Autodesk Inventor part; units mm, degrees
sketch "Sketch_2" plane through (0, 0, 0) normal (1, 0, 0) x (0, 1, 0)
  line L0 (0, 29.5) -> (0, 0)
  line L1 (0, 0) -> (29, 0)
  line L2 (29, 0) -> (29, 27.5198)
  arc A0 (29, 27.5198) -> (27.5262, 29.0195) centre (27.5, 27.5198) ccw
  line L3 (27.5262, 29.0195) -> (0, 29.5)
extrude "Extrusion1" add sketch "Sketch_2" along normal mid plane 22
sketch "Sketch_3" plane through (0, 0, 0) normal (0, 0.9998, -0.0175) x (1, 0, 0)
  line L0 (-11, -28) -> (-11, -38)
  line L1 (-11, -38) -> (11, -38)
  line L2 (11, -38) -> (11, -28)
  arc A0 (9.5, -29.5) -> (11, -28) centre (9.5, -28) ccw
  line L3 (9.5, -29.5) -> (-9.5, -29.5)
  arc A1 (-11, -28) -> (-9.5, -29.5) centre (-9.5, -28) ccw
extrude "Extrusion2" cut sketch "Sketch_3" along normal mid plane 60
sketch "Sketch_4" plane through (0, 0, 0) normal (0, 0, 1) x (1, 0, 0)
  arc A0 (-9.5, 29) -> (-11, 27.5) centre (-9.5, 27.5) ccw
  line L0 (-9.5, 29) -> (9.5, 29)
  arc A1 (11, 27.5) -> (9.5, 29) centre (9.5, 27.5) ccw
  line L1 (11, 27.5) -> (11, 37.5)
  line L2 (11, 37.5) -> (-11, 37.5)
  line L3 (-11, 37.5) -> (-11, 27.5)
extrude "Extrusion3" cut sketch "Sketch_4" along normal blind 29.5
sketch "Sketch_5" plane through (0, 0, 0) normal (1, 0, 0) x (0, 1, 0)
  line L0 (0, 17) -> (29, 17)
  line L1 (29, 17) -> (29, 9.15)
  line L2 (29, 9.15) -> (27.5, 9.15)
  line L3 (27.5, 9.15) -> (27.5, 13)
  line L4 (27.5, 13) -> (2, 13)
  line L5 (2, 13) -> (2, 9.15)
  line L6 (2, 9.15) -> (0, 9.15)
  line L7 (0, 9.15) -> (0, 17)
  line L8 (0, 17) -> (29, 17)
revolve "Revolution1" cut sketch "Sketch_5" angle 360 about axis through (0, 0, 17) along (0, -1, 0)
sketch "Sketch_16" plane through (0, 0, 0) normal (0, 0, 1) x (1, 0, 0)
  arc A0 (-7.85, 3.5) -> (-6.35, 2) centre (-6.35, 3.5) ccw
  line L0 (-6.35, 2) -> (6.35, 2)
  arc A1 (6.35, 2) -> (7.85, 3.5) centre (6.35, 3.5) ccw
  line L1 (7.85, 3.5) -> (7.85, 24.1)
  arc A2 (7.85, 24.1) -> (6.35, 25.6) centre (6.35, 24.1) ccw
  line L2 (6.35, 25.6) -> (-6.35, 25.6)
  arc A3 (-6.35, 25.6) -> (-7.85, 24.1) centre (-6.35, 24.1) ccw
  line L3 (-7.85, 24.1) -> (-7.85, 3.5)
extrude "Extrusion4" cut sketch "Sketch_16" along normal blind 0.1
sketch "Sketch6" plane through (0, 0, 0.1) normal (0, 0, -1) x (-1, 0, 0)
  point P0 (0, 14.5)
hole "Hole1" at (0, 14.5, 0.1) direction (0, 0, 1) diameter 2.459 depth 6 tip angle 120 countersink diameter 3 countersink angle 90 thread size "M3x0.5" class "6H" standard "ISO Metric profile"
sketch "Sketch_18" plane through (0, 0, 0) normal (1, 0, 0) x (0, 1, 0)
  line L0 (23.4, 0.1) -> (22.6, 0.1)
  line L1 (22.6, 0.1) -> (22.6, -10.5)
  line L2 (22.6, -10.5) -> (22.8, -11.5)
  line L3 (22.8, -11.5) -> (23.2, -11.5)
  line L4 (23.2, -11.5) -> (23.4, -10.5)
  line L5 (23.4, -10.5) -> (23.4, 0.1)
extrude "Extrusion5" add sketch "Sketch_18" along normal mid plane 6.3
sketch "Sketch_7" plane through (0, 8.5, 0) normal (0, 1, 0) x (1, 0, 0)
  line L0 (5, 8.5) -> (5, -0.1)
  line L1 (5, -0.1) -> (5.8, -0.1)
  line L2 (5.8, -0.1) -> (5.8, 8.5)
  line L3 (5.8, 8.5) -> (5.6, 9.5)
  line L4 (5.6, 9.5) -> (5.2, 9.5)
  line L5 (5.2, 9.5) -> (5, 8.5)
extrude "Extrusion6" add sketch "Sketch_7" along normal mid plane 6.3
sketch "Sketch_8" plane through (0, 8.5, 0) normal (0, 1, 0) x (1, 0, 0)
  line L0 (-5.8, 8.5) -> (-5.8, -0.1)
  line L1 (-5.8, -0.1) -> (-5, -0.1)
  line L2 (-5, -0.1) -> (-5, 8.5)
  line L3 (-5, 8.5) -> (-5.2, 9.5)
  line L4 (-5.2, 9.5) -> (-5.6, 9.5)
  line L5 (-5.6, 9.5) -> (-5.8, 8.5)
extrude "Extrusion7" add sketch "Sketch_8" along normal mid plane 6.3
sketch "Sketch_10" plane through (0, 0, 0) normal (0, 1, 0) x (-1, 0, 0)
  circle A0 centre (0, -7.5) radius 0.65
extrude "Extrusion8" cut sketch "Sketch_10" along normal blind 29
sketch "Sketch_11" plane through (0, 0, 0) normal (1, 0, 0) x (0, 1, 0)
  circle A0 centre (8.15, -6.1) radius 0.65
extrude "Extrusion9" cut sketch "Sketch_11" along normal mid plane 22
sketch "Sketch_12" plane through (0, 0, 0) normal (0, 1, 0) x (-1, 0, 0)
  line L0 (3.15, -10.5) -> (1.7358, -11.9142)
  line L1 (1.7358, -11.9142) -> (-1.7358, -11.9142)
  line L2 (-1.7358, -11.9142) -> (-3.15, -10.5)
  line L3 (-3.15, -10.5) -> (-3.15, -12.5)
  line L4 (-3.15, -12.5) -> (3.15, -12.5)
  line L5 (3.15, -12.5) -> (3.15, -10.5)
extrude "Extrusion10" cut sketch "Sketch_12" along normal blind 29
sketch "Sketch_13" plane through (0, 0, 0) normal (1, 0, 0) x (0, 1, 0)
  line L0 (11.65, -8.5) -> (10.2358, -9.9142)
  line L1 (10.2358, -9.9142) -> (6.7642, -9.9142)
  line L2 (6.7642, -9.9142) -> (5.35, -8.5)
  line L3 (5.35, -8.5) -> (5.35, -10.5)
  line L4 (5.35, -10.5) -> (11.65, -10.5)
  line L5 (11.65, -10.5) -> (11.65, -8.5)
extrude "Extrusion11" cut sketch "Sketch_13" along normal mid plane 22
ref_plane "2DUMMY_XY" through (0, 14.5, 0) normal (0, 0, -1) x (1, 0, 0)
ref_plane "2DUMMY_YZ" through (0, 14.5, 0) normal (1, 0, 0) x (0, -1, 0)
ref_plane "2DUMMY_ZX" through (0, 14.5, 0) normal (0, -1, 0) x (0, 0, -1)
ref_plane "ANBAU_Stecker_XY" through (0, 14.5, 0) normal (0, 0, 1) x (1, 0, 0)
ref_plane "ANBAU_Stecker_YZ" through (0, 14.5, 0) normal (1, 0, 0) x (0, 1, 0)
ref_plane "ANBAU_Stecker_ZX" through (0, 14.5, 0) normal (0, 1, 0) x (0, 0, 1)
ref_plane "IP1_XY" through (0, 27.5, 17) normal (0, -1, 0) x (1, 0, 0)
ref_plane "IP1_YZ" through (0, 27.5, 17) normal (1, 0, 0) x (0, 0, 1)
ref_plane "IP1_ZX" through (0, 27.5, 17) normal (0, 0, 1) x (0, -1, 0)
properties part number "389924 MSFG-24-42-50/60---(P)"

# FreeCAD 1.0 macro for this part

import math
import FreeCAD as App
import Part
import Sketcher
Q = App.Units.Quantity


def add_polygon(sketch, points):
    """Adds a closed chain of lines whose ends are joined by coincident constraints."""
    first, n = sketch.GeometryCount, len(points)
    for a, b in zip(points, points[1:] + points[:1]):
        sketch.addGeometry(Part.LineSegment(App.Vector(*a, 0), App.Vector(*b, 0)), False)
    for i in range(n):
        sketch.addConstraint(Sketcher.Constraint("Coincident", first + i, 2, first + (i + 1) % n, 1))

doc = App.newDocument("Part")
body = doc.addObject("PartDesign::Body", "Body")

sketch1 = body.newObject("Sketcher::SketchObject", "Sketch")
sketch1.AttachmentSupport = (doc.getObject("YZ_Plane"), [""])
sketch1.MapMode = "FlatFace"
sketch1.addGeometry([
    Part.LineSegment(App.Vector(27.5, 29, 0), App.Vector(0, 29.5, 0)),
    Part.LineSegment(App.Vector(0, 29.5, 0), App.Vector(0, 0, 0)),
    Part.LineSegment(App.Vector(0, 0, 0), App.Vector(29, 0, 0)),
    Part.LineSegment(App.Vector(29, 0, 0), App.Vector(29, 27.5, 0)),
    Part.ArcOfCircle(Part.Circle(App.Vector(27.5, 27.5, 0), App.Vector(0, 0, 1), 1.5), math.radians(0), math.radians(89)),
], False)
sketch1.addConstraint([
    Sketcher.Constraint("Coincident", 0, 2, 1, 1),
    Sketcher.Constraint("Coincident", 1, 2, 2, 1),
    Sketcher.Constraint("Coincident", 2, 2, 3, 1),
    Sketcher.Constraint("Tangent", 3, 2, 4, 1),
    Sketcher.Constraint("Tangent", 4, 2, 0, 1),
    Sketcher.Constraint("Vertical", 1),
    Sketcher.Constraint("Horizontal", 2),
    Sketcher.Constraint("Vertical", 3),
    Sketcher.Constraint("Coincident", 1, 2, -1, 1),
    Sketcher.Constraint("Radius", 4, 1.5),
    Sketcher.Constraint("DistanceX", 2, 1, 2, 2, 29.0),
    Sketcher.Constraint("Angle", 0, Q("179 deg")),
    Sketcher.Constraint("DistanceY", 1, 2, 1, 1, 29.5),
])
pad1 = body.newObject("PartDesign::Pad", "Pad")
pad1.Profile = sketch1
pad1.Length = 22
pad1.Midplane = True

sketch2 = body.newObject("Sketcher::SketchObject", "Sketch001")
sketch2.Placement = App.Placement(App.Vector(0, 0, 0), App.Rotation(App.Vector(1, 0, 0), App.Vector(0, -0.017452406, -0.999847695), App.Vector(0, 0.999847695, -0.017452406), "ZXY"))
sketch2.addGeometry([
    Part.ArcOfCircle(Part.Circle(App.Vector(-9.5, -28, 0), App.Vector(0, 0, 1), 1.5), math.radians(180), math.radians(270)),
    Part.LineSegment(App.Vector(-11, -28, 0), App.Vector(-11, -38, 0)),
    Part.LineSegment(App.Vector(-11, -38, 0), App.Vector(11, -38, 0)),
    Part.LineSegment(App.Vector(11, -38, 0), App.Vector(11, -28, 0)),
    Part.ArcOfCircle(Part.Circle(App.Vector(9.5, -28, 0), App.Vector(0, 0, 1), 1.5), math.radians(-90), math.radians(0)),
    Part.LineSegment(App.Vector(9.5, -29.5, 0), App.Vector(-9.5, -29.5, 0)),
], False)
sketch2.addConstraint([
    Sketcher.Constraint("Tangent", 0, 1, 1, 1),
    Sketcher.Constraint("Coincident", 1, 2, 2, 1),
    Sketcher.Constraint("Coincident", 2, 2, 3, 1),
    Sketcher.Constraint("Tangent", 3, 2, 4, 2),
    Sketcher.Constraint("Tangent", 4, 1, 5, 1),
    Sketcher.Constraint("Tangent", 5, 2, 0, 2),
    Sketcher.Constraint("Vertical", 1),
    Sketcher.Constraint("Horizontal", 2),
    Sketcher.Constraint("Vertical", 3),
    Sketcher.Constraint("Horizontal", 5),
    Sketcher.Constraint("Equal", 0, 4),
    Sketcher.Constraint("Radius", 0, 1.5),
    Sketcher.Constraint("DistanceX", 2, 1, 2, 2, 22.0),
    Sketcher.Constraint("DistanceY", 1, 2, 1, 1, 10.0),
    Sketcher.Constraint("DistanceY", 0, 3, -1, 1, 28.0),
    Sketcher.Constraint("DistanceX", 0, 1, -1, 1, 11.0),
])
pocket1 = body.newObject("PartDesign::Pocket", "Pocket")
pocket1.Profile = sketch2
pocket1.Length = 60
pocket1.Midplane = True

sketch3 = body.newObject("Sketcher::SketchObject", "Sketch002")
sketch3.AttachmentSupport = (doc.getObject("XY_Plane"), [""])
sketch3.MapMode = "FlatFace"
sketch3.addGeometry([
    Part.ArcOfCircle(Part.Circle(App.Vector(-9.5, 27.5, 0), App.Vector(0, 0, 1), 1.5), math.radians(90), math.radians(180)),
    Part.LineSegment(App.Vector(-9.5, 29, 0), App.Vector(9.5, 29, 0)),
    Part.ArcOfCircle(Part.Circle(App.Vector(9.5, 27.5, 0), App.Vector(0, 0, 1), 1.5), math.radians(0), math.radians(90)),
    Part.LineSegment(App.Vector(11, 27.5, 0), App.Vector(11, 37.5, 0)),
    Part.LineSegment(App.Vector(11, 37.5, 0), App.Vector(-11, 37.5, 0)),
    Part.LineSegment(App.Vector(-11, 37.5, 0), App.Vector(-11, 27.5, 0)),
], False)
sketch3.addConstraint([
    Sketcher.Constraint("Tangent", 0, 1, 1, 1),
    Sketcher.Constraint("Tangent", 1, 2, 2, 2),
    Sketcher.Constraint("Tangent", 2, 1, 3, 1),
    Sketcher.Constraint("Coincident", 3, 2, 4, 1),
    Sketcher.Constraint("Coincident", 4, 2, 5, 1),
    Sketcher.Constraint("Tangent", 5, 2, 0, 2),
    Sketcher.Constraint("Horizontal", 1),
    Sketcher.Constraint("Vertical", 3),
    Sketcher.Constraint("Horizontal", 4),
    Sketcher.Constraint("Vertical", 5),
    Sketcher.Constraint("Equal", 0, 2),
    Sketcher.Constraint("Radius", 0, 1.5),
    Sketcher.Constraint("DistanceX", 1, 1, 1, 2, 19.0),
    Sketcher.Constraint("DistanceY", 3, 1, 3, 2, 10.0),
    Sketcher.Constraint("DistanceY", -1, 1, 0, 1, 29.0),
    Sketcher.Constraint("DistanceX", -1, 1, 2, 1, 11.0),
])
pocket2 = body.newObject("PartDesign::Pocket", "Pocket001")
pocket2.Profile = sketch3
pocket2.Length = 29.5
pocket2.Reversed = True

sketch4 = body.newObject("Sketcher::SketchObject", "Sketch003")
sketch4.AttachmentSupport = (doc.getObject("YZ_Plane"), [""])
sketch4.MapMode = "FlatFace"
add_polygon(sketch4, [(29, 17), (0, 17), (0, 9.2), (2, 9.2), (2, 13), (27.5, 13), (27.5, 9.2), (29, 9.2)])
sketch4.addGeometry(Part.LineSegment(App.Vector(29, 17, 0), App.Vector(0, 17, 0)), True)
sketch4.addConstraint([
    Sketcher.Constraint("Horizontal", 0),
    Sketcher.Constraint("Vertical", 1),
    Sketcher.Constraint("Horizontal", 2),
    Sketcher.Constraint("Vertical", 3),
    Sketcher.Constraint("Horizontal", 4),
    Sketcher.Constraint("Vertical", 5),
    Sketcher.Constraint("Horizontal", 6),
    Sketcher.Constraint("Vertical", 7),
    Sketcher.Constraint("Horizontal", 8),
    Sketcher.Constraint("Coincident", 8, 1, 7, 2),
    Sketcher.Constraint("PointOnObject", 0, 2, -2),
    Sketcher.Constraint("PointOnObject", 8, 2, -2),
    Sketcher.Constraint("Horizontal", 2, 2, 5, 2),
    Sketcher.Constraint("DistanceX", 0, 2, 0, 1, 29.0),
    Sketcher.Constraint("DistanceX", 2, 1, 2, 2, 2.0),
    Sketcher.Constraint("DistanceX", 4, 1, 4, 2, 25.5),
    Sketcher.Constraint("DistanceY", -1, 1, 0, 2, 17.0),
    Sketcher.Constraint("DistanceY", -1, 1, 3, 2, 13.0),
    Sketcher.Constraint("DistanceY", 1, 2, 1, 1, 7.85),
])
groove = body.newObject("PartDesign::Groove", "Groove")
groove.Profile = sketch4
groove.ReferenceAxis = (sketch4, ["Axis0"])
groove.Angle = 360

sketch5 = body.newObject("Sketcher::SketchObject", "Sketch004")
sketch5.AttachmentSupport = (doc.getObject("XY_Plane"), [""])
sketch5.MapMode = "FlatFace"
sketch5.addGeometry([
    Part.LineSegment(App.Vector(-7.8, 24.1, 0), App.Vector(-7.8, 3.5, 0)),
    Part.ArcOfCircle(Part.Circle(App.Vector(-6.3, 3.5, 0), App.Vector(0, 0, 1), 1.5), math.radians(180), math.radians(270)),
    Part.LineSegment(App.Vector(-6.3, 2, 0), App.Vector(6.3, 2, 0)),
    Part.ArcOfCircle(Part.Circle(App.Vector(6.3, 3.5, 0), App.Vector(0, 0, 1), 1.5), math.radians(-90), math.radians(0)),
    Part.LineSegment(App.Vector(7.8, 3.5, 0), App.Vector(7.8, 24.1, 0)),
    Part.ArcOfCircle(Part.Circle(App.Vector(6.3, 24.1, 0), App.Vector(0, 0, 1), 1.5), math.radians(0), math.radians(90)),
    Part.LineSegment(App.Vector(6.3, 25.6, 0), App.Vector(-6.3, 25.6, 0)),
    Part.ArcOfCircle(Part.Circle(App.Vector(-6.3, 24.1, 0), App.Vector(0, 0, 1), 1.5), math.radians(90), math.radians(180)),
], False)
sketch5.addConstraint([
    Sketcher.Constraint("Tangent", 0, 2, 1, 1),
    Sketcher.Constraint("Tangent", 1, 2, 2, 1),
    Sketcher.Constraint("Tangent", 2, 2, 3, 1),
    Sketcher.Constraint("Tangent", 3, 2, 4, 1),
    Sketcher.Constraint("Tangent", 4, 2, 5, 1),
    Sketcher.Constraint("Tangent", 5, 2, 6, 1),
    Sketcher.Constraint("Tangent", 6, 2, 7, 1),
    Sketcher.Constraint("Tangent", 7, 2, 0, 1),
    Sketcher.Constraint("Vertical", 0),
    Sketcher.Constraint("Horizontal", 2),
    Sketcher.Constraint("Vertical", 4),
    Sketcher.Constraint("Horizontal", 6),
    Sketcher.Constraint("Equal", 1, 3),
    Sketcher.Constraint("Equal", 3, 5),
    Sketcher.Constraint("Equal", 5, 7),
    Sketcher.Constraint("Radius", 1, 1.5),
    Sketcher.Constraint("DistanceX", 2, 1, 2, 2, 12.7),
    Sketcher.Constraint("DistanceY", 0, 2, 0, 1, 20.6),
    Sketcher.Constraint("DistanceY", -1, 1, 1, 2, 2.0),
    Sketcher.Constraint("DistanceX", 1, 3, -1, 1, 6.35),
])
pocket3 = body.newObject("PartDesign::Pocket", "Pocket002")
pocket3.Profile = sketch5
pocket3.Length = 0.1
pocket3.Reversed = True

sketch6 = body.newObject("Sketcher::SketchObject", "Sketch005")
sketch6.AttachmentSupport = (doc.getObject("XY_Plane"), [""])
sketch6.MapMode = "FlatFace"
sketch6.AttachmentOffset = App.Placement(App.Vector(0, 0, 0.1), App.Rotation())
sketch6.addGeometry(Part.Circle(App.Vector(0, 14.5, 0), App.Vector(0, 0, 1), 1.2), False)
sketch6.addConstraint([
    Sketcher.Constraint("PointOnObject", 0, 3, -2),
    Sketcher.Constraint("Diameter", 0, 2.459),
    Sketcher.Constraint("DistanceY", -1, 1, 0, 3, 14.5),
])
doc.recompute()
hole = body.newObject("PartDesign::Hole", "Hole")
hole.Profile = sketch6
hole.ThreadType = "None"
hole.Diameter = 2.459
hole.DepthType = "Dimension"
hole.Depth = 6
hole.DrillPoint = "Angled"
hole.DrillPointAngle = 120
hole.HoleCutType = "Countersink"
hole.HoleCutDiameter = 3
hole.HoleCutCountersinkAngle = 90
hole.Reversed = True

sketch7 = body.newObject("Sketcher::SketchObject", "Sketch006")
sketch7.AttachmentSupport = (doc.getObject("YZ_Plane"), [""])
sketch7.MapMode = "FlatFace"
add_polygon(sketch7, [(23.4, -10.5), (23.4, 0.1), (22.6, 0.1), (22.6, -10.5), (22.8, -11.5), (23.2, -11.5)])
sketch7.addConstraint([
    Sketcher.Constraint("Vertical", 0),
    Sketcher.Constraint("Horizontal", 1),
    Sketcher.Constraint("Vertical", 2),
    Sketcher.Constraint("Horizontal", 4),
    Sketcher.Constraint("Horizontal", 2, 2, 5, 2),
    Sketcher.Constraint("Equal", 3, 5),
    Sketcher.Constraint("DistanceX", 1, 2, 1, 1, 0.8),
    Sketcher.Constraint("DistanceX", 4, 1, 4, 2, 0.4),
    Sketcher.Constraint("DistanceY", 0, 1, 0, 2, 10.6),
    Sketcher.Constraint("DistanceY", 3, 2, 2, 2, 1.0),
    Sketcher.Constraint("DistanceX", -1, 1, 0, 2, 23.4),
    Sketcher.Constraint("DistanceY", -1, 1, 0, 2, 0.1),
])
pad2 = body.newObject("PartDesign::Pad", "Pad001")
pad2.Profile = sketch7
pad2.Length = 6.3
pad2.Midplane = True

sketch8 = body.newObject("Sketcher::SketchObject", "Sketch007")
sketch8.AttachmentSupport = (doc.getObject("XZ_Plane"), [""])
sketch8.MapMode = "FlatFace"
sketch8.AttachmentOffset = App.Placement(App.Vector(0, 0, -8.5), App.Rotation())
add_polygon(sketch8, [(5.2, -9.5), (5, -8.5), (5, 0.1), (5.8, 0.1), (5.8, -8.5), (5.6, -9.5)])
sketch8.addConstraint([
    Sketcher.Constraint("Vertical", 1),
    Sketcher.Constraint("Horizontal", 2),
    Sketcher.Constraint("Vertical", 3),
    Sketcher.Constraint("Horizontal", 5),
    Sketcher.Constraint("Horizontal", 0, 2, 3, 2),
    Sketcher.Constraint("Equal", 0, 4),
    Sketcher.Constraint("DistanceX", 2, 1, 2, 2, 0.8),
    Sketcher.Constraint("DistanceX", 5, 2, 5, 1, 0.4),
    Sketcher.Constraint("DistanceY", 1, 1, 1, 2, 8.6),
    Sketcher.Constraint("DistanceX", -1, 1, 0, 2, 5.0),
    Sketcher.Constraint("DistanceY", 4, 2, 3, 2, 1.0),
    Sketcher.Constraint("DistanceY", 0, 2, -1, 1, 8.5),
])
pad3 = body.newObject("PartDesign::Pad", "Pad002")
pad3.Profile = sketch8
pad3.Length = 6.3
pad3.Midplane = True

sketch9 = body.newObject("Sketcher::SketchObject", "Sketch008")
sketch9.AttachmentSupport = (doc.getObject("XZ_Plane"), [""])
sketch9.MapMode = "FlatFace"
sketch9.AttachmentOffset = App.Placement(App.Vector(0, 0, -8.5), App.Rotation())
add_polygon(sketch9, [(-5.6, -9.5), (-5.8, -8.5), (-5.8, 0.1), (-5, 0.1), (-5, -8.5), (-5.2, -9.5)])
sketch9.addConstraint([
    Sketcher.Constraint("Vertical", 1),
    Sketcher.Constraint("Horizontal", 2),
    Sketcher.Constraint("Vertical", 3),
    Sketcher.Constraint("Horizontal", 5),
    Sketcher.Constraint("Horizontal", 0, 2, 3, 2),
    Sketcher.Constraint("Equal", 0, 4),
    Sketcher.Constraint("DistanceX", 2, 1, 2, 2, 0.8),
    Sketcher.Constraint("DistanceX", 5, 2, 5, 1, 0.4),
    Sketcher.Constraint("DistanceY", 1, 1, 1, 2, 8.6),
    Sketcher.Constraint("DistanceX", 2, 2, -1, 1, 5.0),
    Sketcher.Constraint("DistanceY", 4, 2, 3, 2, 1.0),
    Sketcher.Constraint("DistanceY", 0, 2, -1, 1, 8.5),
])
pad4 = body.newObject("PartDesign::Pad", "Pad003")
pad4.Profile = sketch9
pad4.Length = 6.3
pad4.Midplane = True

sketch10 = body.newObject("Sketcher::SketchObject", "Sketch009")
sketch10.AttachmentSupport = (doc.getObject("XZ_Plane"), [""])
sketch10.MapMode = "FlatFace"
sketch10.addGeometry(Part.Circle(App.Vector(0, -7.5, 0), App.Vector(0, 0, 1), 0.7), False)
sketch10.addConstraint([
    Sketcher.Constraint("PointOnObject", 0, 3, -2),
    Sketcher.Constraint("Diameter", 0, 1.3),
    Sketcher.Constraint("DistanceY", 0, 3, -1, 1, 7.5),
])
pocket4 = body.newObject("PartDesign::Pocket", "Pocket003")
pocket4.Profile = sketch10
pocket4.Length = 29

sketch11 = body.newObject("Sketcher::SketchObject", "Sketch010")
sketch11.AttachmentSupport = (doc.getObject("YZ_Plane"), [""])
sketch11.MapMode = "FlatFace"
sketch11.addGeometry(Part.Circle(App.Vector(8.2, -6.1, 0), App.Vector(0, 0, 1), 0.7), False)
sketch11.addConstraint([
    Sketcher.Constraint("Diameter", 0, 1.3),
    Sketcher.Constraint("DistanceY", 0, 3, -1, 1, 6.1),
    Sketcher.Constraint("DistanceX", -1, 1, 0, 3, 8.15),
])
pocket5 = body.newObject("PartDesign::Pocket", "Pocket004")
pocket5.Profile = sketch11
pocket5.Length = 22
pocket5.Midplane = True

sketch12 = body.newObject("Sketcher::SketchObject", "Sketch011")
sketch12.AttachmentSupport = (doc.getObject("XZ_Plane"), [""])
sketch12.MapMode = "FlatFace"
add_polygon(sketch12, [(-3.1, -12.5), (-3.1, -10.5), (-1.7, -11.9), (1.7, -11.9), (3.1, -10.5), (3.1, -12.5)])
sketch12.addConstraint([
    Sketcher.Constraint("Vertical", 0),
    Sketcher.Constraint("Horizontal", 2),
    Sketcher.Constraint("Vertical", 4),
    Sketcher.Constraint("Horizontal", 5),
    Sketcher.Constraint("Symmetric", 0, 2, 3, 2, -2),
    Sketcher.Constraint("Perpendicular", 1, 3),
    Sketcher.Constraint("Equal", 1, 3),
    Sketcher.Constraint("DistanceY", 0, 1, 0, 2, 2.0),
    Sketcher.Constraint("Distance", 1, 2.0),
    Sketcher.Constraint("DistanceX", 5, 2, 5, 1, 6.3),
    Sketcher.Constraint("DistanceY", 0, 2, -1, 1, 10.5),
])
pocket6 = body.newObject("PartDesign::Pocket", "Pocket005")
pocket6.Profile = sketch12
pocket6.Length = 29

sketch13 = body.newObject("Sketcher::SketchObject", "Sketch012")
sketch13.AttachmentSupport = (doc.getObject("YZ_Plane"), [""])
sketch13.MapMode = "FlatFace"
add_polygon(sketch13, [(11.7, -10.5), (11.7, -8.5), (10.2, -9.9), (6.8, -9.9), (5.3, -8.5), (5.3, -10.5)])
sketch13.addConstraint([
    Sketcher.Constraint("Vertical", 0),
    Sketcher.Constraint("Horizontal", 2),
    Sketcher.Constraint("Vertical", 4),
    Sketcher.Constraint("Horizontal", 5),
    Sketcher.Constraint("Perpendicular", 1, 3),
    Sketcher.Constraint("Horizontal", 0, 2, 3, 2),
    Sketcher.Constraint("Equal", 1, 3),
    Sketcher.Constraint("DistanceY", 0, 1, 0, 2, 2.0),
    Sketcher.Constraint("Distance", 1, 2.0),
    Sketcher.Constraint("DistanceX", 5, 1, 5, 2, 6.3),
    Sketcher.Constraint("DistanceY", 0, 2, -1, 1, 8.5),
    Sketcher.Constraint("DistanceX", -1, 1, 0, 2, 11.65),
])
pocket7 = body.newObject("PartDesign::Pocket", "Pocket006")
pocket7.Profile = sketch13
pocket7.Length = 22
pocket7.Midplane = True

doc.recompute()
